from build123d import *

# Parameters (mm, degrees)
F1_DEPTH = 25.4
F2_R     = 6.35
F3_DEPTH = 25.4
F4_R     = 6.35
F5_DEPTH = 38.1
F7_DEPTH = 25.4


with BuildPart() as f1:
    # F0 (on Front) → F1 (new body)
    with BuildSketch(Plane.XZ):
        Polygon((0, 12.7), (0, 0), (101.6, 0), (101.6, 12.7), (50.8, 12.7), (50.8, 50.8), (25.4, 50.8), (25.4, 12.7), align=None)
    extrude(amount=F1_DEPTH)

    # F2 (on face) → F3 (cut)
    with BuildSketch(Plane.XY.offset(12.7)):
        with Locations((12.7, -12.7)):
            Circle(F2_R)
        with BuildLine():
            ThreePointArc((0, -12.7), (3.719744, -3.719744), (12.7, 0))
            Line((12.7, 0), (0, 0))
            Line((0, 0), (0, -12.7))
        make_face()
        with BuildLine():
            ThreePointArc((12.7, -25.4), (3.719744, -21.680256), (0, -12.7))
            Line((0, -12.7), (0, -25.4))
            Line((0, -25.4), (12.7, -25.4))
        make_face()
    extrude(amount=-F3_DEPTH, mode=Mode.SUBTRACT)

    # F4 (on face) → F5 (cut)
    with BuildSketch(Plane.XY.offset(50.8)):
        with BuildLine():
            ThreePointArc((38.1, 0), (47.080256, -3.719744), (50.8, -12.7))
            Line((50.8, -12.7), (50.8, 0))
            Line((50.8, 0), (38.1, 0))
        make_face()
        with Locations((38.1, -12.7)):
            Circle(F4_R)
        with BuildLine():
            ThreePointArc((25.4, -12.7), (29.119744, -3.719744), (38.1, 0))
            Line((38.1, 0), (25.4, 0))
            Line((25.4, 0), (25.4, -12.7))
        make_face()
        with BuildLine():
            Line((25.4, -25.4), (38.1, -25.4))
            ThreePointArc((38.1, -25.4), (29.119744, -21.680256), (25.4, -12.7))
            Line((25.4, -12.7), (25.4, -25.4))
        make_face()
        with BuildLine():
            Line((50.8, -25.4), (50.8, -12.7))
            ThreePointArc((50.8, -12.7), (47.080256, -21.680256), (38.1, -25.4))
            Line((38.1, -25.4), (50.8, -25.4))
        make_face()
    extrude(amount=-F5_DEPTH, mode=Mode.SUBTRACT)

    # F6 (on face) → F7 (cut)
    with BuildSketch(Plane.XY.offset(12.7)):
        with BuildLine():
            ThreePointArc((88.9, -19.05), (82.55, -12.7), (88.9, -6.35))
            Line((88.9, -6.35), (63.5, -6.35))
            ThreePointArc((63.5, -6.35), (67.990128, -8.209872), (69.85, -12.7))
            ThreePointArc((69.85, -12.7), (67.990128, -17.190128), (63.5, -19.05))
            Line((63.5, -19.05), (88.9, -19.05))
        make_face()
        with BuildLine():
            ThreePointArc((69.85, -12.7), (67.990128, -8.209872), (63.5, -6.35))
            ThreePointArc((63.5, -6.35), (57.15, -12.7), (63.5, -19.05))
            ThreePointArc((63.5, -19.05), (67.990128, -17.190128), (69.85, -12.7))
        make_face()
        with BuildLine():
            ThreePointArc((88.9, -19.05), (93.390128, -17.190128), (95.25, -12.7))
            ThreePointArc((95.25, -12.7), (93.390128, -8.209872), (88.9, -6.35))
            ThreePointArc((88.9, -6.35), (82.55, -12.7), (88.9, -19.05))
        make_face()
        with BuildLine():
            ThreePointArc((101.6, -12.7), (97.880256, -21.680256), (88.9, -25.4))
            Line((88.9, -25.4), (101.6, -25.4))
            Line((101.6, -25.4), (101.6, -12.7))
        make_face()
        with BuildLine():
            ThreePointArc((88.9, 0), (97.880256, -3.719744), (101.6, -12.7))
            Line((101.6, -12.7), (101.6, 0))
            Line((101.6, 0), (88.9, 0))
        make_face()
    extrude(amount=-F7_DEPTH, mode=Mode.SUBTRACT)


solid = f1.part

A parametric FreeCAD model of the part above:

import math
import FreeCAD as App
import Part
import Sketcher

V = App.Vector
Q = App.Units.Quantity


def add_polygon(sketch, points):
    """Adds a closed chain of lines whose ends are joined by coincident constraints."""
    first, n = sketch.GeometryCount, len(points)
    for a, b in zip(points, points[1:] + points[:1]):
        sketch.addGeometry(Part.LineSegment(App.Vector(*a, 0), App.Vector(*b, 0)), False)
    for i in range(n):
        sketch.addConstraint(Sketcher.Constraint("Coincident", first + i, 2, first + (i + 1) % n, 1))

doc = App.newDocument("Part")
body = doc.addObject("PartDesign::Body", "Body")

sketch1 = body.newObject("Sketcher::SketchObject", "Sketch")
sketch1.AttachmentSupport = (doc.getObject("XZ_Plane"), [""])
sketch1.MapMode = "FlatFace"
add_polygon(sketch1, [(0, 13), (0, 0), (102, 0), (102, 13), (51, 13), (51, 51), (25, 51), (25, 13)])
sketch1.addConstraint([
    Sketcher.Constraint("Vertical", 0),
    Sketcher.Constraint("Horizontal", 1),
    Sketcher.Constraint("Vertical", 2),
    Sketcher.Constraint("Horizontal", 3),
    Sketcher.Constraint("Vertical", 4),
    Sketcher.Constraint("Horizontal", 5),
    Sketcher.Constraint("Vertical", 6),
    Sketcher.Constraint("Horizontal", 7),
    Sketcher.Constraint("Coincident", 0, 2, -1, 1),
    Sketcher.Constraint("Horizontal", 3, 2, 6, 2),
    Sketcher.Constraint("Equal", 5, 7),
    Sketcher.Constraint("DistanceX", 1, 1, 1, 2, Q("4 in")),
    Sketcher.Constraint("DistanceX", 3, 2, 3, 1, Q("2 in")),
    Sketcher.Constraint("DistanceY", 0, 2, 0, 1, Q("0.5 in")),
    Sketcher.Constraint("DistanceY", 4, 1, 4, 2, Q("1.5 in")),
])
pad1 = body.newObject("PartDesign::Pad", "Pad")
pad1.Profile = sketch1
pad1.Length = Q("1 in")

sketch2 = body.newObject("Sketcher::SketchObject", "Sketch001")
sketch2.AttachmentSupport = (doc.getObject("XY_Plane"), [""])
sketch2.MapMode = "FlatFace"
sketch2.AttachmentOffset = App.Placement(V(0, 0, 0.5 * 25.4), App.Rotation())
sketch2.addGeometry([
    Part.Circle(V(13, -13, 0), V(0, 0, 1), 6),
    Part.ArcOfCircle(Part.Circle(V(13, -13, 0), V(0, 0, 1), 13), math.radians(90), math.radians(180)),
    Part.LineSegment(V(13, 0, 0), V(0, 0, 0)),
    Part.LineSegment(V(0, 0, 0), V(0, -13, 0)),
    Part.ArcOfCircle(Part.Circle(V(13, -13, 0), V(0, 0, 1), 13), math.radians(-180), math.radians(-90)),
    Part.LineSegment(V(0, -13, 0), V(0, -25, 0)),
    Part.LineSegment(V(0, -25, 0), V(13, -25, 0)),
], False)
sketch2.addConstraint([
    Sketcher.Constraint("Tangent", 1, 1, 2, 1),
    Sketcher.Constraint("Coincident", 2, 2, 3, 1),
    Sketcher.Constraint("Tangent", 3, 2, 1, 2),
    Sketcher.Constraint("Tangent", 4, 1, 5, 1),
    Sketcher.Constraint("Coincident", 5, 2, 6, 1),
    Sketcher.Constraint("Tangent", 6, 2, 4, 2),
    Sketcher.Constraint("Horizontal", 2),
    Sketcher.Constraint("Vertical", 3),
    Sketcher.Constraint("Vertical", 5),
    Sketcher.Constraint("Horizontal", 6),
    Sketcher.Constraint("Coincident", 2, 2, -1, 1),
    Sketcher.Constraint("Coincident", 1, 3, 0, 3),
    Sketcher.Constraint("Coincident", 4, 3, 0, 3),
    Sketcher.Constraint("Equal", 1, 4),
    Sketcher.Constraint("Diameter", 0, Q("0.5 in")),
    Sketcher.Constraint("Radius", 1, Q("0.5 in")),
])
pocket1 = body.newObject("PartDesign::Pocket", "Pocket")
pocket1.Profile = sketch2
pocket1.Length = Q("1 in")

sketch3 = body.newObject("Sketcher::SketchObject", "Sketch002")
sketch3.AttachmentSupport = (doc.getObject("XY_Plane"), [""])
sketch3.MapMode = "FlatFace"
sketch3.AttachmentOffset = App.Placement(V(0, 0, 2 * 25.4), App.Rotation())
sketch3.addGeometry([
    Part.ArcOfCircle(Part.Circle(V(38, -13, 0), V(0, 0, 1), 13), math.radians(0), math.radians(90)),
    Part.LineSegment(V(51, -13, 0), V(51, 0, 0)),
    Part.LineSegment(V(51, 0, 0), V(38, 0, 0)),
    Part.Circle(V(38, -13, 0), V(0, 0, 1), 6),
    Part.ArcOfCircle(Part.Circle(V(38, -13, 0), V(0, 0, 1), 13), math.radians(90), math.radians(180)),
    Part.LineSegment(V(38, 0, 0), V(25, 0, 0)),
    Part.LineSegment(V(25, 0, 0), V(25, -13, 0)),
    Part.LineSegment(V(25, -25, 0), V(38, -25, 0)),
    Part.ArcOfCircle(Part.Circle(V(38, -13, 0), V(0, 0, 1), 13), math.radians(-180), math.radians(-90)),
    Part.LineSegment(V(25, -13, 0), V(25, -25, 0)),
    Part.LineSegment(V(51, -25, 0), V(51, -13, 0)),
    Part.ArcOfCircle(Part.Circle(V(38, -13, 0), V(0, 0, 1), 13), math.radians(-90), math.radians(0)),
    Part.LineSegment(V(38, -25, 0), V(51, -25, 0)),
], False)
sketch3.addConstraint([
    Sketcher.Constraint("Tangent", 0, 1, 1, 1),
    Sketcher.Constraint("Coincident", 1, 2, 2, 1),
    Sketcher.Constraint("Tangent", 2, 2, 0, 2),
    Sketcher.Constraint("Tangent", 4, 1, 5, 1),
    Sketcher.Constraint("Coincident", 5, 2, 6, 1),
    Sketcher.Constraint("Tangent", 6, 2, 4, 2),
    Sketcher.Constraint("Tangent", 7, 2, 8, 2),
    Sketcher.Constraint("Tangent", 8, 1, 9, 1),
    Sketcher.Constraint("Coincident", 9, 2, 7, 1),
    Sketcher.Constraint("Tangent", 10, 2, 11, 2),
    Sketcher.Constraint("Tangent", 11, 1, 12, 1),
    Sketcher.Constraint("Coincident", 12, 2, 10, 1),
    Sketcher.Constraint("Vertical", 1),
    Sketcher.Constraint("Horizontal", 2),
    Sketcher.Constraint("Horizontal", 5),
    Sketcher.Constraint("Vertical", 6),
    Sketcher.Constraint("Horizontal", 7),
    Sketcher.Constraint("Vertical", 9),
    Sketcher.Constraint("Vertical", 10),
    Sketcher.Constraint("Horizontal", 12),
    Sketcher.Constraint("Coincident", 3, 3, 0, 3),
    Sketcher.Constraint("Coincident", 4, 3, 0, 3),
    Sketcher.Constraint("Coincident", 8, 3, 0, 3),
    Sketcher.Constraint("Coincident", 11, 3, 0, 3),
    Sketcher.Constraint("Equal", 0, 4),
    Sketcher.Constraint("Equal", 4, 8),
    Sketcher.Constraint("Equal", 8, 11),
    Sketcher.Constraint("PointOnObject", 1, 2, -1),
    Sketcher.Constraint("Diameter", 3, Q("0.5 in")),
    Sketcher.Constraint("Radius", 0, Q("0.5 in")),
    Sketcher.Constraint("DistanceX", -1, 1, 0, 1, Q("2 in")),
])
pocket2 = body.newObject("PartDesign::Pocket", "Pocket001")
pocket2.Profile = sketch3
pocket2.Length = Q("1.5 in")

sketch4 = body.newObject("Sketcher::SketchObject", "Sketch003")
sketch4.AttachmentSupport = (doc.getObject("XY_Plane"), [""])
sketch4.MapMode = "FlatFace"
sketch4.AttachmentOffset = App.Placement(V(0, 0, 0.5 * 25.4), App.Rotation())
sketch4.addGeometry([
    Part.LineSegment(V(89, -6, 0), V(64, -6, 0)),
    Part.ArcOfCircle(Part.Circle(V(64, -13, 0), V(0, 0, 1), 6), math.radians(90), math.radians(270)),
    Part.LineSegment(V(64, -19, 0), V(89, -19, 0)),
    Part.ArcOfCircle(Part.Circle(V(89, -13, 0), V(0, 0, 1), 6), math.radians(-90), math.radians(0)),
    Part.ArcOfCircle(Part.Circle(V(89, -13, 0), V(0, 0, 1), 6), math.radians(0), math.radians(90)),
    Part.ArcOfCircle(Part.Circle(V(89, -13, 0), V(0, 0, 1), 13), math.radians(-90), math.radians(0)),
    Part.LineSegment(V(89, -25, 0), V(102, -25, 0)),
    Part.LineSegment(V(102, -25, 0), V(102, -13, 0)),
    Part.ArcOfCircle(Part.Circle(V(89, -13, 0), V(0, 0, 1), 13), math.radians(0), math.radians(90)),
    Part.LineSegment(V(102, -13, 0), V(102, 0, 0)),
    Part.LineSegment(V(102, 0, 0), V(89, 0, 0)),
], False)
sketch4.addConstraint([
    Sketcher.Constraint("Tangent", 0, 2, 1, 1),
    Sketcher.Constraint("Tangent", 1, 2, 2, 1),
    Sketcher.Constraint("Tangent", 2, 2, 3, 1),
    Sketcher.Constraint("Tangent", 3, 2, 4, 1),
    Sketcher.Constraint("Tangent", 4, 2, 0, 1),
    Sketcher.Constraint("Tangent", 5, 1, 6, 1),
    Sketcher.Constraint("Coincident", 6, 2, 7, 1),
    Sketcher.Constraint("Tangent", 7, 2, 5, 2),
    Sketcher.Constraint("Tangent", 8, 1, 9, 1),
    Sketcher.Constraint("Coincident", 9, 2, 10, 1),
    Sketcher.Constraint("Tangent", 10, 2, 8, 2),
    Sketcher.Constraint("Horizontal", 0),
    Sketcher.Constraint("Horizontal", 2),
    Sketcher.Constraint("Horizontal", 6),
    Sketcher.Constraint("Vertical", 7),
    Sketcher.Constraint("Vertical", 9),
    Sketcher.Constraint("Horizontal", 10),
    Sketcher.Constraint("Coincident", 5, 3, 3, 3),
    Sketcher.Constraint("Coincident", 8, 3, 3, 3),
    Sketcher.Constraint("Equal", 1, 3),
    Sketcher.Constraint("Equal", 5, 8),
    Sketcher.Constraint("PointOnObject", 9, 2, -1),
    Sketcher.Constraint("Horizontal", 8, 3, 3, 2),
    Sketcher.Constraint("Radius", 5, Q("0.5 in")),
    Sketcher.Constraint("DistanceX", 0, 2, 0, 1, Q("1 in")),
    Sketcher.Constraint("Radius", 1, Q("0.25 in")),
    Sketcher.Constraint("DistanceX", -1, 1, 6, 2, Q("4 in")),
])
pocket3 = body.newObject("PartDesign::Pocket", "Pocket002")
pocket3.Profile = sketch4
pocket3.Length = Q("1 in")

doc.recompute()
